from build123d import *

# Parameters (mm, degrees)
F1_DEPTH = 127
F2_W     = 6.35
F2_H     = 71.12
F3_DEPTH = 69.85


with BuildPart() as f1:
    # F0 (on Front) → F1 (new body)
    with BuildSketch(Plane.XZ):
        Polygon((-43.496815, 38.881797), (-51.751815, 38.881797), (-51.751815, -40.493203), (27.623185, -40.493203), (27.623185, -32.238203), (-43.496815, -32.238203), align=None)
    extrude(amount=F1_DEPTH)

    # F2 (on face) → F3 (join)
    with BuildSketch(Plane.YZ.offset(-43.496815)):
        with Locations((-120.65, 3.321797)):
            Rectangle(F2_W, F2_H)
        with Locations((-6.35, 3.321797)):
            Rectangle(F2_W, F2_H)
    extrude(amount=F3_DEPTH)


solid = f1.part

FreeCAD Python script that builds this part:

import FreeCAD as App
import Part
import Sketcher
Q = App.Units.Quantity


def add_polygon(sketch, points):
    """Adds a closed chain of lines whose ends are joined by coincident constraints."""
    first, n = sketch.GeometryCount, len(points)
    for a, b in zip(points, points[1:] + points[:1]):
        sketch.addGeometry(Part.LineSegment(App.Vector(*a, 0), App.Vector(*b, 0)), False)
    for i in range(n):
        sketch.addConstraint(Sketcher.Constraint("Coincident", first + i, 2, first + (i + 1) % n, 1))

doc = App.newDocument("Part")
body = doc.addObject("PartDesign::Body", "Body")

# Sketch on XZ plane
sketch1 = body.newObject("Sketcher::SketchObject", "Sketch")
sketch1.AttachmentSupport = (doc.getObject("XZ_Plane"), [""])
sketch1.MapMode = "FlatFace"
add_polygon(sketch1, [(-43, 39), (-52, 39), (-52, -40), (28, -40), (28, -32), (-43, -32)])  # lines 0-5
sketch1.addConstraint([
    Sketcher.Constraint("Horizontal", 0),
    Sketcher.Constraint("Vertical", 1),
    Sketcher.Constraint("Horizontal", 2),
    Sketcher.Constraint("Vertical", 3),
    Sketcher.Constraint("Horizontal", 4),
    Sketcher.Constraint("Vertical", 5),
    Sketcher.Constraint("Equal", 2, 1),
    Sketcher.Constraint("Equal", 0, 3),
    Sketcher.Constraint("DistanceX", 4, 2, 4, 1, Q("2.8 in")),
    Sketcher.Constraint("DistanceX", 0, 2, 0, 1, Q("0.325 in")),
    Sketcher.Constraint("DistanceX", 0, 2, -1, 1, 51.751815),
    Sketcher.Constraint("DistanceY", -1, 1, 0, 2, 38.881797),
])
pad1 = body.newObject("PartDesign::Pad", "Pad")
pad1.Profile = sketch1
pad1.Length = Q("5 in")

# Sketch on YZ plane
sketch2 = body.newObject("Sketcher::SketchObject", "Sketch001")
sketch2.AttachmentSupport = (doc.getObject("YZ_Plane"), [""])
sketch2.MapMode = "FlatFace"
sketch2.AttachmentOffset = App.Placement(App.Vector(0, 0, -43.496815), App.Rotation())
add_polygon(sketch2, [(-124, 39), (-124, -32), (-117, -32), (-117, 39)])  # lines 0-3
add_polygon(sketch2, [(-10, 39), (-10, -32), (-3, -32), (-3, 39)])  # lines 4-7
sketch2.addConstraint([
    Sketcher.Constraint("Vertical", 0),
    Sketcher.Constraint("Horizontal", 1),
    Sketcher.Constraint("Vertical", 2),
    Sketcher.Constraint("Horizontal", 3),
    Sketcher.Constraint("Vertical", 4),
    Sketcher.Constraint("Horizontal", 5),
    Sketcher.Constraint("Vertical", 6),
    Sketcher.Constraint("Horizontal", 7),
    Sketcher.Constraint("Horizontal", 1, 2, 4, 2),
    Sketcher.Constraint("Horizontal", 3, 2, 6, 2),
    Sketcher.Constraint("Equal", 3, 5),
    Sketcher.Constraint("DistanceY", 0, 2, 0, 1, Q("2.8 in")),
    Sketcher.Constraint("DistanceX", 1, 1, 1, 2, Q("0.25 in")),
    Sketcher.Constraint("DistanceX", 0, 2, 4, 2, Q("4.5 in")),
    Sketcher.Constraint("DistanceX", 0, 2, -1, 1, Q("4.875 in")),
    Sketcher.Constraint("DistanceY", 0, 2, -1, 1, 32.238203),
])
pad2 = body.newObject("PartDesign::Pad", "Pad001")
pad2.Profile = sketch2
pad2.Length = Q("2.75 in")

doc.recompute()
